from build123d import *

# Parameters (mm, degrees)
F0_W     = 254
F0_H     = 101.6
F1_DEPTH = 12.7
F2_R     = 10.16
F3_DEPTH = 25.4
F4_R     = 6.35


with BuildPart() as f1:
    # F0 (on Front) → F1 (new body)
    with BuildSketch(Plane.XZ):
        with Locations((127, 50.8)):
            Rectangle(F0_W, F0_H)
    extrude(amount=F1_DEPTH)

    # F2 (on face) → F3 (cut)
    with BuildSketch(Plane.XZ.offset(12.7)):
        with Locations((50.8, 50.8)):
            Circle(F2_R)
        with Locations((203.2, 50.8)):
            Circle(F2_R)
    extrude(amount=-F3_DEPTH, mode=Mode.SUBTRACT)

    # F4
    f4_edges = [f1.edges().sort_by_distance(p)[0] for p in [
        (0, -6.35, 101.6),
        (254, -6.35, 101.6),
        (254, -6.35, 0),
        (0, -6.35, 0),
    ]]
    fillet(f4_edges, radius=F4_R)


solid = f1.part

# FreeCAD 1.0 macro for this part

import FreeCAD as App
import Part
import Sketcher

V = App.Vector
Q = App.Units.Quantity


def edges_at(feature, points):
    """Names of the edges that pass closest to the given points."""
    edges = feature.Shape.Edges
    near = lambda p: min(range(len(edges)), key=lambda i: edges[i].distToShape(Part.Vertex(*p))[0])
    return sorted({f"Edge{near(p) + 1}" for p in points})

doc = App.newDocument("Part")
body = doc.addObject("PartDesign::Body", "Body")

# Sketch on XZ plane
sketch1 = body.newObject("Sketcher::SketchObject", "Sketch")
sketch1.AttachmentSupport = (doc.getObject("XZ_Plane"), [""])
sketch1.MapMode = "FlatFace"
sketch1.addGeometry(Part.LineSegment(V(0, 102, 0), V(0, 0, 0)), False)
sketch1.addGeometry(Part.LineSegment(V(0, 0, 0), V(254, 0, 0)), False)
sketch1.addGeometry(Part.LineSegment(V(254, 0, 0), V(254, 102, 0)), False)
sketch1.addGeometry(Part.LineSegment(V(254, 102, 0), V(0, 102, 0)), False)
sketch1.addConstraint(Sketcher.Constraint("Coincident", 0, 2, 1, 1))
sketch1.addConstraint(Sketcher.Constraint("Coincident", 1, 2, 2, 1))
sketch1.addConstraint(Sketcher.Constraint("Coincident", 2, 2, 3, 1))
sketch1.addConstraint(Sketcher.Constraint("Coincident", 3, 2, 0, 1))
sketch1.addConstraint(Sketcher.Constraint("Vertical", 0))
sketch1.addConstraint(Sketcher.Constraint("Horizontal", 1))
sketch1.addConstraint(Sketcher.Constraint("Vertical", 2))
sketch1.addConstraint(Sketcher.Constraint("Horizontal", 3))
sketch1.addConstraint(Sketcher.Constraint("Coincident", 0, 2, -1, 1))
sketch1.addConstraint(Sketcher.Constraint("DistanceX", 1, 1, 1, 2, Q("10 in")))
sketch1.addConstraint(Sketcher.Constraint("DistanceY", 0, 2, 0, 1, Q("4 in")))
pad1 = body.newObject("PartDesign::Pad", "Pad")
pad1.Profile = sketch1
pad1.Length = Q("0.5 in")

# Sketch on XZ plane
sketch2 = body.newObject("Sketcher::SketchObject", "Sketch001")
sketch2.AttachmentSupport = (doc.getObject("XZ_Plane"), [""])
sketch2.MapMode = "FlatFace"
sketch2.AttachmentOffset = App.Placement(V(0, 0, 0.5 * 25.4), App.Rotation())
sketch2.addGeometry(Part.Circle(V(51, 51, 0), V(0, 0, 1), 10), False)
sketch2.addGeometry(Part.Circle(V(203, 51, 0), V(0, 0, 1), 10), False)
sketch2.addConstraint(Sketcher.Constraint("Equal", 0, 1))
sketch2.addConstraint(Sketcher.Constraint("Horizontal", 0, 3, 1, 3))
sketch2.addConstraint(Sketcher.Constraint("Diameter", 0, Q("0.8 in")))
sketch2.addConstraint(Sketcher.Constraint("DistanceX", -1, 1, 0, 3, Q("2 in")))
sketch2.addConstraint(Sketcher.Constraint("DistanceY", -1, 1, 0, 3, Q("2 in")))
sketch2.addConstraint(Sketcher.Constraint("DistanceX", -1, 1, 1, 3, Q("8 in")))
pocket1 = body.newObject("PartDesign::Pocket", "Pocket")
pocket1.Profile = sketch2
pocket1.Length = Q("1 in")
doc.recompute()

fillet = body.newObject("PartDesign::Fillet", "Fillet")
fillet.Base = (pocket1, edges_at(pocket1, [
    (0, -6.35, 101.6),
    (254, -6.35, 101.6),
    (254, -6.35, 0),
    (0, -6.35, 0),
]))
fillet.Radius = Q("0.25 in")

doc.recompute()
